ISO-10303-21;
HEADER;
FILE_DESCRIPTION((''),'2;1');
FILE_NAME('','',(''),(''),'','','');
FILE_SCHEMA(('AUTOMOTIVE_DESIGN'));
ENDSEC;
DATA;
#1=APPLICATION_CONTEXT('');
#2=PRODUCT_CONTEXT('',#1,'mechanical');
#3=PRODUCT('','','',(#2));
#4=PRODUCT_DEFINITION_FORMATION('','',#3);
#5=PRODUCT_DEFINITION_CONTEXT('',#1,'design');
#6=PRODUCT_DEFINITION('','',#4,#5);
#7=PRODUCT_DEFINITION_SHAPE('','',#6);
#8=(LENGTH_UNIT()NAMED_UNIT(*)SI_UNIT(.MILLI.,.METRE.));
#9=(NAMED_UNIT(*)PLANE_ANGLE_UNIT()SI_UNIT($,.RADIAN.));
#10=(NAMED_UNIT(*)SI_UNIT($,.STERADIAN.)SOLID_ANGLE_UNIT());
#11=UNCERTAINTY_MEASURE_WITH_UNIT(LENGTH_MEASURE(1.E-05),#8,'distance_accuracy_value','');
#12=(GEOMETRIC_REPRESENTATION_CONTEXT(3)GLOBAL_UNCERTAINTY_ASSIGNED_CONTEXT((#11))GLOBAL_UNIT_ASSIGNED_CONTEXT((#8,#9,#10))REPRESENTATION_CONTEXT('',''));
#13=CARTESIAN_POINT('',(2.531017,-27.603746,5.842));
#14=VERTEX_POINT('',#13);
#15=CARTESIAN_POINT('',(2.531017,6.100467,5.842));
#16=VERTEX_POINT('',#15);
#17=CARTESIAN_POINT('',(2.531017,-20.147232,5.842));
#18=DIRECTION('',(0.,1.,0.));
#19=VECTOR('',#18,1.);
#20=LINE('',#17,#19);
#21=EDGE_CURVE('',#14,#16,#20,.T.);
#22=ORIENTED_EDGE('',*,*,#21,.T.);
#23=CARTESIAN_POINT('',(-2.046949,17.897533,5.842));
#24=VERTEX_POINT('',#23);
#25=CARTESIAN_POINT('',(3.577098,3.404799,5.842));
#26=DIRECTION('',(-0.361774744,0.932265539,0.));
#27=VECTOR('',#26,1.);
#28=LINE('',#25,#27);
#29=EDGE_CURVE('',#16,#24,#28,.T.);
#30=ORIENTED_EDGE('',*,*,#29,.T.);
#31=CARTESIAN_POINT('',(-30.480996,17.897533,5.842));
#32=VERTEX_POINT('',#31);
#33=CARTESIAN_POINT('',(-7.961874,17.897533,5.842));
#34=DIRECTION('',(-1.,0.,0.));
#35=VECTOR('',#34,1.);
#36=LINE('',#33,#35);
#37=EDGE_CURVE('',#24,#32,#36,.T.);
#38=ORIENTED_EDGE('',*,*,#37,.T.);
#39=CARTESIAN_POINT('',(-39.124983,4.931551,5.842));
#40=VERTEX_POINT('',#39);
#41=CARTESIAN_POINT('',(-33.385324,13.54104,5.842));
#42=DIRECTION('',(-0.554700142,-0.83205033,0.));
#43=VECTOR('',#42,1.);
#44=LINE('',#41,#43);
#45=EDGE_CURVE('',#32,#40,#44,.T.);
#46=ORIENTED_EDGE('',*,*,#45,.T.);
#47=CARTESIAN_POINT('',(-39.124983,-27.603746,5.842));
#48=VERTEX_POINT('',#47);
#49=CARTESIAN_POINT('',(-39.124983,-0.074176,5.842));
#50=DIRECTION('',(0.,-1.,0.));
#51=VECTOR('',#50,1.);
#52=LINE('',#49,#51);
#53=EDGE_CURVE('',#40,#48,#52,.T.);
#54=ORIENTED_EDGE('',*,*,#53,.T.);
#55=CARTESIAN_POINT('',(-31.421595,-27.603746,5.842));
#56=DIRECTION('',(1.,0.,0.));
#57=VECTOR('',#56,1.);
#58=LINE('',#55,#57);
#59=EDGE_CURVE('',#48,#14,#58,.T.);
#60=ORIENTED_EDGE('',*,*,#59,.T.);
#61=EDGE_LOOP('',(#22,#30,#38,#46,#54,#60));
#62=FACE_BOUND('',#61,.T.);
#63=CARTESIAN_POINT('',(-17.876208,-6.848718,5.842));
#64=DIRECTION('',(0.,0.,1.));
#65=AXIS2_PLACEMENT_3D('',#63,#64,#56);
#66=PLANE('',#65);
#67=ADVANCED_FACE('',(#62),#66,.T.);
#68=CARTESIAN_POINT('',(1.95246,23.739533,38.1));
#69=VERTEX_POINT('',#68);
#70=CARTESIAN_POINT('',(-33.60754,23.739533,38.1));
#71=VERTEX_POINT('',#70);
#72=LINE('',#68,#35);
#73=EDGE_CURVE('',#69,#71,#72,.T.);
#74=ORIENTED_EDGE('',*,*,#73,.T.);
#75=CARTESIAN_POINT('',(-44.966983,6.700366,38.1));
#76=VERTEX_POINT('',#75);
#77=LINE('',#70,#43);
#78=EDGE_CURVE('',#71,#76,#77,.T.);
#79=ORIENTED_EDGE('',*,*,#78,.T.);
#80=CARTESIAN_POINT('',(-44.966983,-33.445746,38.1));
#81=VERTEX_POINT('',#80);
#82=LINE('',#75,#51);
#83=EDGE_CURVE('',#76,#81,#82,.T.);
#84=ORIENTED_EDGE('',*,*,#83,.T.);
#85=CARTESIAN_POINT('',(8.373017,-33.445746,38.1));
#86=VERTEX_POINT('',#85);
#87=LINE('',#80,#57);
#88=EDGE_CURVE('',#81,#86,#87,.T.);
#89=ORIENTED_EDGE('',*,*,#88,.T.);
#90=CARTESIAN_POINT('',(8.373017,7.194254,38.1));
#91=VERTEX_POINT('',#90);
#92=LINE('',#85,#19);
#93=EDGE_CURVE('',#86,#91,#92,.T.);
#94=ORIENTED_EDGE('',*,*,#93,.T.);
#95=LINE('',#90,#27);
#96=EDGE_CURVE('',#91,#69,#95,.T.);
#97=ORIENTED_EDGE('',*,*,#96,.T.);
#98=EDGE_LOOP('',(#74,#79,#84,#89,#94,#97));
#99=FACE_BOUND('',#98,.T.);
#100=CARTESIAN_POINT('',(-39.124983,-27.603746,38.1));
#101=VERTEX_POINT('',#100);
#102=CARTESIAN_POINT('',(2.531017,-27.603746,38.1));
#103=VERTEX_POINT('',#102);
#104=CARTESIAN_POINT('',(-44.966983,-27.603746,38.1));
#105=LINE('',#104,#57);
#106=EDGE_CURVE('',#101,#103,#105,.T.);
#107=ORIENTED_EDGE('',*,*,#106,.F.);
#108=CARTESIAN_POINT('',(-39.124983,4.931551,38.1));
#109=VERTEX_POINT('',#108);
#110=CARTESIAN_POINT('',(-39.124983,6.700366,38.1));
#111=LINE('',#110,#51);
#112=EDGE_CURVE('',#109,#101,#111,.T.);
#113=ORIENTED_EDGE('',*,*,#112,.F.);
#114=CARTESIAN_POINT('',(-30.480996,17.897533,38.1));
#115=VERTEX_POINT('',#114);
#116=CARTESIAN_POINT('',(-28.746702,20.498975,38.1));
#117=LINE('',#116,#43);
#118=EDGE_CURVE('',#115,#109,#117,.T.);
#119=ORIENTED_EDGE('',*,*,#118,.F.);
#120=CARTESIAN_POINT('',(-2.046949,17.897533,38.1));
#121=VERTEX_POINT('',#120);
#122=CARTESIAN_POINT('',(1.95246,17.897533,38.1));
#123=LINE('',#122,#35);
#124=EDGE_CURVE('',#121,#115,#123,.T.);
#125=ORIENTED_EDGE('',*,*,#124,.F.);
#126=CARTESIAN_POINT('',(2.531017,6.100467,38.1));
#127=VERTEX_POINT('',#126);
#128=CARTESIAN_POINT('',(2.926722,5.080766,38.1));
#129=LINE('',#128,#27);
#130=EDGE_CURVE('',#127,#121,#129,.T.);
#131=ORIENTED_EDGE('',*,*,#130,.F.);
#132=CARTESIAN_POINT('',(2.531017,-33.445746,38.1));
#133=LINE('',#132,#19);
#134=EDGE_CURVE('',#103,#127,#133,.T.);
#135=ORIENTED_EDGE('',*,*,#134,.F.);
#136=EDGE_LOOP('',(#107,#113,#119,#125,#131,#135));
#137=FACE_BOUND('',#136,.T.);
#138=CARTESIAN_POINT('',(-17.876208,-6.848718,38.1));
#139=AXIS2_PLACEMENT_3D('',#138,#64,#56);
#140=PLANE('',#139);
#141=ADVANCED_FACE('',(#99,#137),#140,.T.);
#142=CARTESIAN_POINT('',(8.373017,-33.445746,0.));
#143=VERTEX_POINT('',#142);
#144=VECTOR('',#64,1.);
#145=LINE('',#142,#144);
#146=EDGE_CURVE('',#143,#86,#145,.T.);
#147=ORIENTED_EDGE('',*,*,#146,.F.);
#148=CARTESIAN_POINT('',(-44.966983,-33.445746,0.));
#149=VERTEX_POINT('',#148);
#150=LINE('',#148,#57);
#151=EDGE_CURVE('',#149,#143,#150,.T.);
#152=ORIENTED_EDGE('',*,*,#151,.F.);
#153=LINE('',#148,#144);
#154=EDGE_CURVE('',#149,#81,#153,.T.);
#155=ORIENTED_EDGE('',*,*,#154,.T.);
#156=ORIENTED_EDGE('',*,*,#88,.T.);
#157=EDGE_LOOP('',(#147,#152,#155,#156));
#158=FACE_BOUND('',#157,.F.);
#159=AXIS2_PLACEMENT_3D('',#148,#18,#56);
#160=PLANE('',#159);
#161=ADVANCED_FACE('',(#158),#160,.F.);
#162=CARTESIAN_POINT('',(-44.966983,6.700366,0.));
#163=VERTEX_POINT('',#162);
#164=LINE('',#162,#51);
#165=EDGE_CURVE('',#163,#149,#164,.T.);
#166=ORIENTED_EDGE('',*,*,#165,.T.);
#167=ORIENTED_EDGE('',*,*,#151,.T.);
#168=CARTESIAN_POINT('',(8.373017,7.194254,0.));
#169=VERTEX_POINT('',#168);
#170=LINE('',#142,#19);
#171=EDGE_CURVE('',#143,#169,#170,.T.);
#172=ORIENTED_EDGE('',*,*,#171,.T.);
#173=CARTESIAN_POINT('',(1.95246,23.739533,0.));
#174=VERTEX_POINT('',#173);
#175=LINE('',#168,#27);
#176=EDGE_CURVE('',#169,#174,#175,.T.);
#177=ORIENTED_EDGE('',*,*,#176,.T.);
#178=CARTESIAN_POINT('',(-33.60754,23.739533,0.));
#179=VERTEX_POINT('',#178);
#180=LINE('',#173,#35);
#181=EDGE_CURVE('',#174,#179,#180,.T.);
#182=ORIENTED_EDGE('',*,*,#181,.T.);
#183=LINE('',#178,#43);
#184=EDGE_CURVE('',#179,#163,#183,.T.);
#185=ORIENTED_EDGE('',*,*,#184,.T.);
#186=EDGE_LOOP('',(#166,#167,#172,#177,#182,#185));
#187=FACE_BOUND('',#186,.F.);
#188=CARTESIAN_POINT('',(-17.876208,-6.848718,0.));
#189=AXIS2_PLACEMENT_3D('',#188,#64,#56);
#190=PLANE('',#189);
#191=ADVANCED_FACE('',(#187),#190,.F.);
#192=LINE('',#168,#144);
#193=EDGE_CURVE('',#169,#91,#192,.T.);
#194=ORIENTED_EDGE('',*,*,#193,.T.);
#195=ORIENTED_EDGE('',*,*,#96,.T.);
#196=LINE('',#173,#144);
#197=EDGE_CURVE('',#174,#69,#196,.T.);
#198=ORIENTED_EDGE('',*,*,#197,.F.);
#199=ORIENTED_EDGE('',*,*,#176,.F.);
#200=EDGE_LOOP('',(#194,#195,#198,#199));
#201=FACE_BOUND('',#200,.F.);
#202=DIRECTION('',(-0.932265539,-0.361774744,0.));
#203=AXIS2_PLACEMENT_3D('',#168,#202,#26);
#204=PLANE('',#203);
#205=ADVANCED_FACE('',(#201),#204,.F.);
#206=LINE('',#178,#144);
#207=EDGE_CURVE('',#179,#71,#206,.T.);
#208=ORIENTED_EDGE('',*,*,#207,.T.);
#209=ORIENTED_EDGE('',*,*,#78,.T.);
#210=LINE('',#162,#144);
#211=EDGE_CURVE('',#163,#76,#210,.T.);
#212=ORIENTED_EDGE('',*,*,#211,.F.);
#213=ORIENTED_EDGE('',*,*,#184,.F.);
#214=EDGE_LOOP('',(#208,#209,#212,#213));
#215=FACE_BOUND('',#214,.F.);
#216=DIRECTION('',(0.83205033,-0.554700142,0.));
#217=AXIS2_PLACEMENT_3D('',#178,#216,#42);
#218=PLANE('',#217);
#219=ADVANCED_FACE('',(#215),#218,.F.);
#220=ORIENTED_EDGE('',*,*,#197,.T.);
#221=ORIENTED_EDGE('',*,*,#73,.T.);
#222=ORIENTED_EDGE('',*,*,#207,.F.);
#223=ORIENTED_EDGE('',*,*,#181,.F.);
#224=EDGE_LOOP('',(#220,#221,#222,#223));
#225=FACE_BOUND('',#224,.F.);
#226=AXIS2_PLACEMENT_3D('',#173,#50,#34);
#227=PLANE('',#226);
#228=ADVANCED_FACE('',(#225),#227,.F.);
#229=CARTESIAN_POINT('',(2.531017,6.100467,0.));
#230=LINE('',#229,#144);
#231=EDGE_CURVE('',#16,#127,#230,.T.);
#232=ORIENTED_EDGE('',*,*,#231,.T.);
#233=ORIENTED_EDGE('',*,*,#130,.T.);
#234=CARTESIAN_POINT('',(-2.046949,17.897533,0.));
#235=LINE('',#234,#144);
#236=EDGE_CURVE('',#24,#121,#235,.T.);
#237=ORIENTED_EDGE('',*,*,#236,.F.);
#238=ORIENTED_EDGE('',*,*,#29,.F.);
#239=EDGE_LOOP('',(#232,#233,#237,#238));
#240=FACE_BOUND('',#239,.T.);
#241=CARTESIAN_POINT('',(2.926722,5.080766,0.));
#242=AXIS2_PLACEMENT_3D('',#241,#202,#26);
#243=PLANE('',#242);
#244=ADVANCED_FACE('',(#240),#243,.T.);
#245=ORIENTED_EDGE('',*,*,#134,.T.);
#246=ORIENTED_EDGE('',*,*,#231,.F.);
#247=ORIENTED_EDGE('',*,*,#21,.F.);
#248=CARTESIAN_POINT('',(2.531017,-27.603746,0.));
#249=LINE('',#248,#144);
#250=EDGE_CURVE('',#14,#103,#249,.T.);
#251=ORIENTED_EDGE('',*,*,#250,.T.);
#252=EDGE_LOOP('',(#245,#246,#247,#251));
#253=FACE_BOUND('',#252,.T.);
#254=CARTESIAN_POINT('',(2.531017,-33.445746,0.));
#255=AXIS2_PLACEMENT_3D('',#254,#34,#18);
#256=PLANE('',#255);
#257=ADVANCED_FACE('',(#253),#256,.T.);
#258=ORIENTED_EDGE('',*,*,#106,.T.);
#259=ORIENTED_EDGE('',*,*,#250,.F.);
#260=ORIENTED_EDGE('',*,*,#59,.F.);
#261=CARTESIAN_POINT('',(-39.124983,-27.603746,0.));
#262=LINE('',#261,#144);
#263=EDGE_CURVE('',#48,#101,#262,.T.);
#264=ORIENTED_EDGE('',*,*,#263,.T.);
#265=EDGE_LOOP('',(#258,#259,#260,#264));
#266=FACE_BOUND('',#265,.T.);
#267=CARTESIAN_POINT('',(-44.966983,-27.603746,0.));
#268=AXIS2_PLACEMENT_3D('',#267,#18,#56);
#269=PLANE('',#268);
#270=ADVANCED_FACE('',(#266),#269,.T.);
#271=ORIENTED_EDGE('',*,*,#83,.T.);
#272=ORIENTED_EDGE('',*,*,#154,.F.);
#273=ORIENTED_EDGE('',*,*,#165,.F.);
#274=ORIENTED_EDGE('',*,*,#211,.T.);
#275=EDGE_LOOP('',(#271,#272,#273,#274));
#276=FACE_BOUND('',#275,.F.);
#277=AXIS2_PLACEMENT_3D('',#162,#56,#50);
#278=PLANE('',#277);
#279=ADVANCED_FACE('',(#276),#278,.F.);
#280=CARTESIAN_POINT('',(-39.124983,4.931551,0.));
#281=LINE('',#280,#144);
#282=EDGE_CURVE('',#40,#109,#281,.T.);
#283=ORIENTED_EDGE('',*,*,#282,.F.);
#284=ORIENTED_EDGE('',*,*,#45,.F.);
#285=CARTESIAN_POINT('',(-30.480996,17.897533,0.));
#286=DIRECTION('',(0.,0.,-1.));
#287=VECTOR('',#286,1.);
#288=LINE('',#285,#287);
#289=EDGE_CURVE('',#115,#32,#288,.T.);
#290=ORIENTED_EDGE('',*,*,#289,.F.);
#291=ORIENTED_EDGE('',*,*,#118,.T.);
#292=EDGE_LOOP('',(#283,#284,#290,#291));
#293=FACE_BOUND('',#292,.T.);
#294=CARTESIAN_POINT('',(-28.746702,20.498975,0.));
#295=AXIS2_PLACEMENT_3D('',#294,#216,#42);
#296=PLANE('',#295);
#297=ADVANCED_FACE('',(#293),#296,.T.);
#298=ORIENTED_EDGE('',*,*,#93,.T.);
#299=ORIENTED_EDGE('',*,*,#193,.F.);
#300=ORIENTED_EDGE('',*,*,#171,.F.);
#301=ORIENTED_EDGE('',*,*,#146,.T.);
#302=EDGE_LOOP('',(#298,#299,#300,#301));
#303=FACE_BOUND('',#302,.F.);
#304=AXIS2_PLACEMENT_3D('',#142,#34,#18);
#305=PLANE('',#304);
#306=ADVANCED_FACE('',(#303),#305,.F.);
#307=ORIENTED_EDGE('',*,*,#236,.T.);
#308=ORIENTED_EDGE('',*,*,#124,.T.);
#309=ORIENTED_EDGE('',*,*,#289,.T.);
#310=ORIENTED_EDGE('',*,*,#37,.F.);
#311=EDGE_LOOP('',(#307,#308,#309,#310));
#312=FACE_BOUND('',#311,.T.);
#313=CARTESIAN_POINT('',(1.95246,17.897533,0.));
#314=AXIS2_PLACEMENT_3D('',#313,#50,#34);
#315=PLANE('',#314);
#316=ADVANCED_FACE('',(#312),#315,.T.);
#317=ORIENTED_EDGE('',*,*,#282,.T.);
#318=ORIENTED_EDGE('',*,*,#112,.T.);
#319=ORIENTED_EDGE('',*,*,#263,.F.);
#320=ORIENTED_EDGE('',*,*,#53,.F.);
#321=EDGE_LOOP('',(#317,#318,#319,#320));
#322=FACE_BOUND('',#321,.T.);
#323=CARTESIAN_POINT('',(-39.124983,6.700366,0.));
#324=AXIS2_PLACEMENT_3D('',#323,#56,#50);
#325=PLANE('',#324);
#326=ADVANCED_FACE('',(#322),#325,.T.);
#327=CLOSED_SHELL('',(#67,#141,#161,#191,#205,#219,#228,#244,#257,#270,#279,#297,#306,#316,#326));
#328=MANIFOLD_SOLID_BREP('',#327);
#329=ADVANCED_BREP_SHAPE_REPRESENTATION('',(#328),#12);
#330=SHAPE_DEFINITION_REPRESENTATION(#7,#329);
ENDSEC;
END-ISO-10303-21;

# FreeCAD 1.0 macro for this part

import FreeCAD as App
import Part
import Sketcher
from FreeCAD import Vector
Q = App.Units.Quantity


def faces_at(feature, points):
    """Names of the faces that lie closest to the given points."""
    faces = feature.Shape.Faces
    near = lambda p: min(range(len(faces)), key=lambda i: faces[i].distToShape(Part.Vertex(*p))[0])
    return sorted({f"Face{near(p) + 1}" for p in points})


def add_polygon(sketch, points):
    """Adds a closed chain of lines whose ends are joined by coincident constraints."""
    first, n = sketch.GeometryCount, len(points)
    for a, b in zip(points, points[1:] + points[:1]):
        sketch.addGeometry(Part.LineSegment(App.Vector(*a, 0), App.Vector(*b, 0)), False)
    for i in range(n):
        sketch.addConstraint(Sketcher.Constraint("Coincident", first + i, 2, first + (i + 1) % n, 1))

doc = App.newDocument("Part")
body = doc.addObject("PartDesign::Body", "Body")

# Sketch on XY plane
sketch1 = body.newObject("Sketcher::SketchObject", "Sketch")
sketch1.AttachmentSupport = (doc.getObject("XY_Plane"), [""])
sketch1.MapMode = "FlatFace"
add_polygon(sketch1, [(-33.60754, 23.739533), (-44.966983, 6.700366), (-44.966983, -33.445746), (8.373017, -33.445746), (8.373017, 7.194254), (1.95246, 23.739533)])  # lines 0-5
sketch1.addConstraint([
    Sketcher.Constraint("Vertical", 1),
    Sketcher.Constraint("Horizontal", 2),
    Sketcher.Constraint("Vertical", 3),
    Sketcher.Constraint("Horizontal", 5),
    Sketcher.Constraint("DistanceX", 2, 1, 2, 2, Q("2.1 in")),
    Sketcher.Constraint("DistanceX", 5, 2, 5, 1, Q("1.4 in")),
    Sketcher.Constraint("DistanceY", 3, 1, 3, 2, Q("1.6 in")),
    Sketcher.Constraint("Distance", 0, 20.478529),
    Sketcher.Constraint("Distance", 4, 17.747389),
    Sketcher.Constraint("DistanceY", 1, 2, 1, 1, 40.146112),
    Sketcher.Constraint("DistanceX", -1, 1, 4, 2, 1.95246),
    Sketcher.Constraint("DistanceY", -1, 1, 0, 2, 6.700366),
])
pad1 = body.newObject("PartDesign::Pad", "Pad")
pad1.Profile = sketch1
pad1.Length = Q("1.5 in")
doc.recompute()

thickness = body.newObject("PartDesign::Thickness", "Thickness")
thickness.Base = (pad1, faces_at(pad1, [(-18.297, -4.853, 38.1)]))
thickness.Value = Q("0.23 in")
thickness.Reversed = True
thickness.Join = "Arc"

doc.recompute()
